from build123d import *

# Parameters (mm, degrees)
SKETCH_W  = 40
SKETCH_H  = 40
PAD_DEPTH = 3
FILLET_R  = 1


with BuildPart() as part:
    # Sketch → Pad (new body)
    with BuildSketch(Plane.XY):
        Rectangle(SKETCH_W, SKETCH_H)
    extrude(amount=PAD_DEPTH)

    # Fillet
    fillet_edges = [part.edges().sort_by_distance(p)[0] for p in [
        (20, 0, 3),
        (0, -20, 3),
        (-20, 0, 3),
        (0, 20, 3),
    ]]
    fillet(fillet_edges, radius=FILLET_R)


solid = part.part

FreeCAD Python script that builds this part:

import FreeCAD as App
import Part
import Sketcher
from FreeCAD import Vector


def edges_at(feature, points):
    """Names of the edges that pass closest to the given points."""
    edges = feature.Shape.Edges
    near = lambda p: min(range(len(edges)), key=lambda i: edges[i].distToShape(Part.Vertex(*p))[0])
    return sorted({f"Edge{near(p) + 1}" for p in points})

doc = App.newDocument("Part")
body = doc.addObject("PartDesign::Body", "Body")

sketch1 = body.newObject("Sketcher::SketchObject", "Sketch")
sketch1.AttachmentSupport = (doc.getObject("XY_Plane"), [""])
sketch1.MapMode = "FlatFace"
sketch1.addGeometry([
    Part.LineSegment(Vector(-20, 20, 0), Vector(-20, -20, 0)),
    Part.LineSegment(Vector(-20, -20, 0), Vector(20, -20, 0)),
    Part.LineSegment(Vector(20, -20, 0), Vector(20, 20, 0)),
    Part.LineSegment(Vector(20, 20, 0), Vector(-20, 20, 0)),
], False)
sketch1.addConstraint([
    Sketcher.Constraint("Coincident", 0, 2, 1, 1),
    Sketcher.Constraint("Coincident", 1, 2, 2, 1),
    Sketcher.Constraint("Coincident", 2, 2, 3, 1),
    Sketcher.Constraint("Coincident", 3, 2, 0, 1),
    Sketcher.Constraint("Vertical", 0),
    Sketcher.Constraint("Horizontal", 1),
    Sketcher.Constraint("Vertical", 2),
    Sketcher.Constraint("Horizontal", 3),
    Sketcher.Constraint("Symmetric", 0, 2, 2, 2, -1, 1),
    Sketcher.Constraint("Equal", 3, 0),
    Sketcher.Constraint("DistanceX", 1, 1, 1, 2, 40.0),
])
pad1 = body.newObject("PartDesign::Pad", "Pad")
pad1.Profile = sketch1
pad1.Length = 3
doc.recompute()

fillet = body.newObject("PartDesign::Fillet", "Fillet")
fillet.Base = (pad1, edges_at(pad1, [
    (20, 0, 3),
    (0, -20, 3),
    (-20, 0, 3),
    (0, 20, 3),
]))
fillet.Radius = 1

doc.recompute()
